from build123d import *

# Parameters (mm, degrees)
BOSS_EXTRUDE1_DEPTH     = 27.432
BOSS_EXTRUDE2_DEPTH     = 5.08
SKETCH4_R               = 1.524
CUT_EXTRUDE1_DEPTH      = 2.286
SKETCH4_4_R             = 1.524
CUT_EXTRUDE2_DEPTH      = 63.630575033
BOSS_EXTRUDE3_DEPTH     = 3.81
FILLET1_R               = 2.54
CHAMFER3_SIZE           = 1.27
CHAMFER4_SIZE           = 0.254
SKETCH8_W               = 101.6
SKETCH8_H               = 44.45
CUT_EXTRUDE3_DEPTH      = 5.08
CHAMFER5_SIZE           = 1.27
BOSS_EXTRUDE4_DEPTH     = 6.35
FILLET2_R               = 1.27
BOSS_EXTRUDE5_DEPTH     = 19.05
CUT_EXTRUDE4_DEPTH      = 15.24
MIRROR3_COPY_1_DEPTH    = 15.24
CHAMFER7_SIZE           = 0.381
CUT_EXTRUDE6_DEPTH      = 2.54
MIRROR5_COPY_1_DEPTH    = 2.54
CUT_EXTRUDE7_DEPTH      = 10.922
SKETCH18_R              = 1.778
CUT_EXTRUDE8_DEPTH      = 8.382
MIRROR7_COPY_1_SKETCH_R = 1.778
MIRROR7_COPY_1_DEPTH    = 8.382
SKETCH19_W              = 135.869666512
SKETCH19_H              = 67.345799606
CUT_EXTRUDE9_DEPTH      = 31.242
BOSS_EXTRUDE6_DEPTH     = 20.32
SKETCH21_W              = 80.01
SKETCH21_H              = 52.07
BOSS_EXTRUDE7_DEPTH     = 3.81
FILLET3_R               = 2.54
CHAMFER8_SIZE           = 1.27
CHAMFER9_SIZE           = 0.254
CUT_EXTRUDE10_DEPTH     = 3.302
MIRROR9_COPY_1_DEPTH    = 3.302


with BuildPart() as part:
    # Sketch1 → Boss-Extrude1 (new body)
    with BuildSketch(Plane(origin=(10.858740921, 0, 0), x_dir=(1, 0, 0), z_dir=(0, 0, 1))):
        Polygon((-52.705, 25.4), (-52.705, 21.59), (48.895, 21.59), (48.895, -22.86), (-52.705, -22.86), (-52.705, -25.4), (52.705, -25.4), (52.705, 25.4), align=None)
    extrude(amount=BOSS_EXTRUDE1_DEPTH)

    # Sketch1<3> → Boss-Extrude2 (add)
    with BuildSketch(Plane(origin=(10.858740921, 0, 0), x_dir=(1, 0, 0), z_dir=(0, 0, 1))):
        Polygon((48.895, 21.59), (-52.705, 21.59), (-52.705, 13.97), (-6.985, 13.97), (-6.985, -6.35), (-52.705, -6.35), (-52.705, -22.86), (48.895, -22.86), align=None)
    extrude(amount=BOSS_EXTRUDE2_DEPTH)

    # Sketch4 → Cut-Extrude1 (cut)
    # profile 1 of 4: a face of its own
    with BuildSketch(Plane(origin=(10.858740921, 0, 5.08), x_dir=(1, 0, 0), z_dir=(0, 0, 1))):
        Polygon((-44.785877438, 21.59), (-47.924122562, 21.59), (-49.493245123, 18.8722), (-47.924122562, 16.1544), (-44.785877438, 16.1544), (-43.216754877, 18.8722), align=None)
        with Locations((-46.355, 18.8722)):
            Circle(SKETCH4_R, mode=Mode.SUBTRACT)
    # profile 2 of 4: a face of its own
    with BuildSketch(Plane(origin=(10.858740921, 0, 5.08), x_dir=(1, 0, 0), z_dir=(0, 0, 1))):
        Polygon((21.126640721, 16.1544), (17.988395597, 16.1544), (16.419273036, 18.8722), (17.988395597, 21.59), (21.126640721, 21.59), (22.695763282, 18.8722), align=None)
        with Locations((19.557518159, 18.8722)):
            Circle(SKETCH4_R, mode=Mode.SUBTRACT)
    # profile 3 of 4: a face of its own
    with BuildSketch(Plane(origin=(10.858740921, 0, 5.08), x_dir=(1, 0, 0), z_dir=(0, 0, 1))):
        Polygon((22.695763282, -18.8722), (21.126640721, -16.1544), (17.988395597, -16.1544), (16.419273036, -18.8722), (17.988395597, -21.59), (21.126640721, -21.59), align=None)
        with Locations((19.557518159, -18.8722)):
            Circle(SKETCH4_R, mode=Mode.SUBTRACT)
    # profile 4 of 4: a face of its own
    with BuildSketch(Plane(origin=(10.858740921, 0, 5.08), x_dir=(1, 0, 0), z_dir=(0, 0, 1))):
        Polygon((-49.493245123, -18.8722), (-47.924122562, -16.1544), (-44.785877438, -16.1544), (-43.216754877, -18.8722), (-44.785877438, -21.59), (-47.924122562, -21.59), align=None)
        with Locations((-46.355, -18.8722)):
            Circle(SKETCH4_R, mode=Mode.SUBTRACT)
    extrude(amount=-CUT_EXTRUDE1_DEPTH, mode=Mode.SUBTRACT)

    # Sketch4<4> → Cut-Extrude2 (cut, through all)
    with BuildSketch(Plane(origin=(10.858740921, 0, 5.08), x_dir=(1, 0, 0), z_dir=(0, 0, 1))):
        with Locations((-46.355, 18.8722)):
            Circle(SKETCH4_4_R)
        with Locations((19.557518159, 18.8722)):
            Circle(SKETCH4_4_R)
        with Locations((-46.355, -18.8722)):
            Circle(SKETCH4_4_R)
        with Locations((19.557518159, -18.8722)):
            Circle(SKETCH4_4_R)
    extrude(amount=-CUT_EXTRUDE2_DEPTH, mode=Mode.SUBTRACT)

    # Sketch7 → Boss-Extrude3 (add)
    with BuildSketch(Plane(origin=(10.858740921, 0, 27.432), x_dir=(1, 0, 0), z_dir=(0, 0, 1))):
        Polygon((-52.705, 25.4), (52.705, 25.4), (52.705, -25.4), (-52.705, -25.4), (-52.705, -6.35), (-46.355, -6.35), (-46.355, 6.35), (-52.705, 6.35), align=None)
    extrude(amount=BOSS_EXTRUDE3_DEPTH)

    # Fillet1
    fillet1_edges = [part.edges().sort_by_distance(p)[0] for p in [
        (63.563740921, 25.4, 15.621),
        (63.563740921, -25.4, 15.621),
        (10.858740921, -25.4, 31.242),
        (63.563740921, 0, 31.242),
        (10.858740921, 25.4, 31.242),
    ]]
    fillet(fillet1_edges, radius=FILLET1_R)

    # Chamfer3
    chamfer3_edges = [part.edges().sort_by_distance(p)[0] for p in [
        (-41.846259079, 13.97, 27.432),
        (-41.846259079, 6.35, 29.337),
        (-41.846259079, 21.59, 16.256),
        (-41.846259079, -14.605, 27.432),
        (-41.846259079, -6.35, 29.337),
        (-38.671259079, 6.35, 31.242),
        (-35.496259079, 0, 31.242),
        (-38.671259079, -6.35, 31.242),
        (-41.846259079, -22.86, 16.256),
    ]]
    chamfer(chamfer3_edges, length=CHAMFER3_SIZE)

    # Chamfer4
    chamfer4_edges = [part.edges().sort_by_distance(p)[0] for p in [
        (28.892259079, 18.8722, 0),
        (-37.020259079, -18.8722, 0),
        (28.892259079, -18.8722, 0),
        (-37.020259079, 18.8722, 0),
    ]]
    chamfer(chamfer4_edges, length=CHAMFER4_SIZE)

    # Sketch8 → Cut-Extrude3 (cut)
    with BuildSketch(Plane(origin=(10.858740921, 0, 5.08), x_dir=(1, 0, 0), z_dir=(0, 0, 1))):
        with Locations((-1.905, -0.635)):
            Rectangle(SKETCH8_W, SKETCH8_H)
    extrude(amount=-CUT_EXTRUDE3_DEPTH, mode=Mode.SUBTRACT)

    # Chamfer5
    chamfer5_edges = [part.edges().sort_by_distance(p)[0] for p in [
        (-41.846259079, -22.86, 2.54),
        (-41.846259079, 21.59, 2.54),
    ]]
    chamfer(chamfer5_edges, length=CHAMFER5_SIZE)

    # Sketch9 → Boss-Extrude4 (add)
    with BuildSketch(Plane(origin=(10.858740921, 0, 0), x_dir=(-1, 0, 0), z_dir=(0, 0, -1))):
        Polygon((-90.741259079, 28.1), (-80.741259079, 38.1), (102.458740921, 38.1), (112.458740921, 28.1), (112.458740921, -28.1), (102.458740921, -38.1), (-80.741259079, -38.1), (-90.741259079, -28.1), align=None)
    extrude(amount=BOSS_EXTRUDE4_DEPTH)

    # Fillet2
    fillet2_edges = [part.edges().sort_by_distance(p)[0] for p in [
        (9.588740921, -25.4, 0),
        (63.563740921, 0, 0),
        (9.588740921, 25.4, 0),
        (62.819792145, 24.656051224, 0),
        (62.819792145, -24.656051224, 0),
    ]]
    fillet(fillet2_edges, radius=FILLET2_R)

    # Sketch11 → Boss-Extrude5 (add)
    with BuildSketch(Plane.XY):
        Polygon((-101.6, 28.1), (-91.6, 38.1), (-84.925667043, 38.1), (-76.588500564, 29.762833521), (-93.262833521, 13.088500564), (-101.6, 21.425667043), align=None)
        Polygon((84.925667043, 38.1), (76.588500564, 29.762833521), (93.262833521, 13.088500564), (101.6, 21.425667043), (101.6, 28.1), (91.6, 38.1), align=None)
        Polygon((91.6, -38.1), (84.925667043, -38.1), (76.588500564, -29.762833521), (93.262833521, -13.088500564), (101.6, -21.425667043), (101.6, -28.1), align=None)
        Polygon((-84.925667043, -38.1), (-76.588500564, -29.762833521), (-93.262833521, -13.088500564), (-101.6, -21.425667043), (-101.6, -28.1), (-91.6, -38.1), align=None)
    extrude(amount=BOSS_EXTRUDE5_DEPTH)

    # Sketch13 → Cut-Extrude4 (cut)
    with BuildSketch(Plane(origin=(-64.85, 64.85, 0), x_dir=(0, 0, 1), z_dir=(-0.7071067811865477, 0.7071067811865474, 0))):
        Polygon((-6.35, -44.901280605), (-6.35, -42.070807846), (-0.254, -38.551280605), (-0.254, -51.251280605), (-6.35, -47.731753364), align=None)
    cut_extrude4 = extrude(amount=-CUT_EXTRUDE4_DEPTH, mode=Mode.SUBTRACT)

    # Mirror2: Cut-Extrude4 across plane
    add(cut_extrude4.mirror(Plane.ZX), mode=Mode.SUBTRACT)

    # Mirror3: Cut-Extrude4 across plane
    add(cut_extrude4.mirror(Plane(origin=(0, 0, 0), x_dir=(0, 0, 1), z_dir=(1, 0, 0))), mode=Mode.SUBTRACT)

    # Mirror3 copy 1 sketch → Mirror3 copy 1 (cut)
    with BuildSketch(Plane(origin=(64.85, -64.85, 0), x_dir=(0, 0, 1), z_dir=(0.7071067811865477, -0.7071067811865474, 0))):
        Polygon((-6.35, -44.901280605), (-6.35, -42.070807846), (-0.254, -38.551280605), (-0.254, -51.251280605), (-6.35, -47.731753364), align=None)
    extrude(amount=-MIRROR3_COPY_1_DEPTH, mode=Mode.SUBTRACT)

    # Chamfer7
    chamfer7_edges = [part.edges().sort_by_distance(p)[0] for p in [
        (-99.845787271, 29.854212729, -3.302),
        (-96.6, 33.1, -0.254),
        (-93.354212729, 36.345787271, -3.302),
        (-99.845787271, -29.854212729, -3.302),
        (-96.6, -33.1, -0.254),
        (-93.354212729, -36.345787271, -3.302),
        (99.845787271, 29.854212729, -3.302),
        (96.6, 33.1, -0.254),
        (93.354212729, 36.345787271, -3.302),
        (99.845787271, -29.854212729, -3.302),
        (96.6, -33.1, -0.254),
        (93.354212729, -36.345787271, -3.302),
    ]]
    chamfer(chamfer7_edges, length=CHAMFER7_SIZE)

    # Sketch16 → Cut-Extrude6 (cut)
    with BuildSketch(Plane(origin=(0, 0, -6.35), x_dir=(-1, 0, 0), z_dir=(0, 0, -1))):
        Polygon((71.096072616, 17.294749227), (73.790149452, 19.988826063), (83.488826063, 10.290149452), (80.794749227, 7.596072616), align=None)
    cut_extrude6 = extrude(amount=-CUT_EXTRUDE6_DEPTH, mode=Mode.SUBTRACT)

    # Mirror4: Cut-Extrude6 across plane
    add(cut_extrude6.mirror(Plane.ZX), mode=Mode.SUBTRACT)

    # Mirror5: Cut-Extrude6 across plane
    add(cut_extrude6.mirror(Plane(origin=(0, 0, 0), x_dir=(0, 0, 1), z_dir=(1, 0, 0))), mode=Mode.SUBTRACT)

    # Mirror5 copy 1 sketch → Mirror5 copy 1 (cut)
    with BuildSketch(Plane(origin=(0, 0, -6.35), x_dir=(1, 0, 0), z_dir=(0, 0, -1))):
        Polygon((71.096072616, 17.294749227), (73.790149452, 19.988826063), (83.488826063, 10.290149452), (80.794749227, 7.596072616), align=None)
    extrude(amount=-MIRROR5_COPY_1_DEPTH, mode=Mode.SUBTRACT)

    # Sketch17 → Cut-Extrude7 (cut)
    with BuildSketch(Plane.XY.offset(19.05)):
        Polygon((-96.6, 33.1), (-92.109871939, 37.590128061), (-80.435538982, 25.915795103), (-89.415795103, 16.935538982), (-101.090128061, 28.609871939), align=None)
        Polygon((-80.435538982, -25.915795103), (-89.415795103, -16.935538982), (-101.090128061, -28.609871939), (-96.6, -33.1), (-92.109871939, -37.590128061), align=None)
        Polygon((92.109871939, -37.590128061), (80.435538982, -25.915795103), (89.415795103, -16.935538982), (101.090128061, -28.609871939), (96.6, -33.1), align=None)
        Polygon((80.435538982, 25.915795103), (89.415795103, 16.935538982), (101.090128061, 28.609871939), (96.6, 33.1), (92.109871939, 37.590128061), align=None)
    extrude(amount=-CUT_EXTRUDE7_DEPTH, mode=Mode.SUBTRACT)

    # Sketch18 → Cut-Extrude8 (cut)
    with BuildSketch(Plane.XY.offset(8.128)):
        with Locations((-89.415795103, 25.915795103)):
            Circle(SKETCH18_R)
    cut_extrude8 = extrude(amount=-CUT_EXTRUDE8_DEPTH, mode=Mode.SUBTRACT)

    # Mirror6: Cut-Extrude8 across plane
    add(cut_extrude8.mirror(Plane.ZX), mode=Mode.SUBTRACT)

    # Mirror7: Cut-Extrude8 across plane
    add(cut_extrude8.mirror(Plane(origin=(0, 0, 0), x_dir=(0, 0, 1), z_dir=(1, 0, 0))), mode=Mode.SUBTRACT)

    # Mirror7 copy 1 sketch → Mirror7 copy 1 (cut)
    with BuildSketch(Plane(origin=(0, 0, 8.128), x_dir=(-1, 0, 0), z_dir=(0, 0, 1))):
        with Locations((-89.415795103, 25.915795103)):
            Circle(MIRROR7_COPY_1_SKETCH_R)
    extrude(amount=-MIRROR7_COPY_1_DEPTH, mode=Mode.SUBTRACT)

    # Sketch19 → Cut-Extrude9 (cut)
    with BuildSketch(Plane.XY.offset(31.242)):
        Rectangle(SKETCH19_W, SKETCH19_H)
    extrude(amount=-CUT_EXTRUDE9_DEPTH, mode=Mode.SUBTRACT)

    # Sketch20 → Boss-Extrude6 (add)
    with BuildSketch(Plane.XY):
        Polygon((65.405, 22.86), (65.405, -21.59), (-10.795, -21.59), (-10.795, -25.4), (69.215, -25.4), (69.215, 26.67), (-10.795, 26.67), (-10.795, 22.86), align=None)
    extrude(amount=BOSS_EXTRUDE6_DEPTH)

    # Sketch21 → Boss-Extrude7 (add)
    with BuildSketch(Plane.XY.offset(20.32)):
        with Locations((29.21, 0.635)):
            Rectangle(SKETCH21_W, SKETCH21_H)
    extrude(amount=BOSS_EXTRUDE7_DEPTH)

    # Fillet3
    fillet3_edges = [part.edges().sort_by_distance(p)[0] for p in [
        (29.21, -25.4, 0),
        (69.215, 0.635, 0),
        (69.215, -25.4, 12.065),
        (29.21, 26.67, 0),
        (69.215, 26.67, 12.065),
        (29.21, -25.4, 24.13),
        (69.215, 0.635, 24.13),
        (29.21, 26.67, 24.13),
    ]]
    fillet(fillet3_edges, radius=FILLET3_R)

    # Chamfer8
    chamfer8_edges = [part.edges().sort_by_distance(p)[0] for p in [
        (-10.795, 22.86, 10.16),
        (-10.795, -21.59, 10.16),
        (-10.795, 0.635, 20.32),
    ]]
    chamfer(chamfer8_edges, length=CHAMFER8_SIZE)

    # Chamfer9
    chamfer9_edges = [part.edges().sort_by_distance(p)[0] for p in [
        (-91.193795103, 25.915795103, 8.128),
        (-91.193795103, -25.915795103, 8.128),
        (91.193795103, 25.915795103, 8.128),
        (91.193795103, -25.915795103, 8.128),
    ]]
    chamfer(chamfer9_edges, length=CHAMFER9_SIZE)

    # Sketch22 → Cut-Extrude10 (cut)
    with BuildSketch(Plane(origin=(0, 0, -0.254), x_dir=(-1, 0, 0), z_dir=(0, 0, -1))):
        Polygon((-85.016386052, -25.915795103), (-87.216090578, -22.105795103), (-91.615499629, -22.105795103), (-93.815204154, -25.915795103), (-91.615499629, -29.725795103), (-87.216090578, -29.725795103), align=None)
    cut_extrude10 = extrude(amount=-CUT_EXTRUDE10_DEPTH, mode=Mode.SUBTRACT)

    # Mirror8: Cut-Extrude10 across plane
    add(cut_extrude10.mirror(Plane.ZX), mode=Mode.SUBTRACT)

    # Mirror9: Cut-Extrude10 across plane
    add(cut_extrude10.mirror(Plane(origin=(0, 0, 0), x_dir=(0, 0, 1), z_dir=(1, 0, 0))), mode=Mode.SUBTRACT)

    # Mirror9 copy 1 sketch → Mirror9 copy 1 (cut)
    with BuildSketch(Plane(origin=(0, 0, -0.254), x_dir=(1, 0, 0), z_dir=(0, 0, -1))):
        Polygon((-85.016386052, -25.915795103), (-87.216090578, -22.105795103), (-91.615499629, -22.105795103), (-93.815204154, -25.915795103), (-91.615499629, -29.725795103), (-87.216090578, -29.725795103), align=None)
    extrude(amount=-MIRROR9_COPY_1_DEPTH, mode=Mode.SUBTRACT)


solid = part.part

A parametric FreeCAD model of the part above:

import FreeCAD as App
import Part
import Sketcher
from FreeCAD import Vector
Q = App.Units.Quantity


def edges_at(feature, points):
    """Names of the edges that pass closest to the given points."""
    edges = feature.Shape.Edges
    near = lambda p: min(range(len(edges)), key=lambda i: edges[i].distToShape(Part.Vertex(*p))[0])
    return sorted({f"Edge{near(p) + 1}" for p in points})


def add_polygon(sketch, points):
    """Adds a closed chain of lines whose ends are joined by coincident constraints."""
    first, n = sketch.GeometryCount, len(points)
    for a, b in zip(points, points[1:] + points[:1]):
        sketch.addGeometry(Part.LineSegment(App.Vector(*a, 0), App.Vector(*b, 0)), False)
    for i in range(n):
        sketch.addConstraint(Sketcher.Constraint("Coincident", first + i, 2, first + (i + 1) % n, 1))

doc = App.newDocument("Part")
body = doc.addObject("PartDesign::Body", "Body")

# Sketch on XY plane
sketch1 = body.newObject("Sketcher::SketchObject", "Sketch")
sketch1.AttachmentSupport = (doc.getObject("XY_Plane"), [""])
sketch1.MapMode = "FlatFace"
add_polygon(sketch1, [(-41.846259, 25.4), (-41.846259, 21.59), (59.753741, 21.59), (59.753741, -22.86), (-41.846259, -22.86), (-41.846259, -25.4), (63.563741, -25.4), (63.563741, 25.4)])  # lines 0-7
sketch1.addConstraint(Sketcher.Constraint("Vertical", 0))
sketch1.addConstraint(Sketcher.Constraint("Horizontal", 1))
sketch1.addConstraint(Sketcher.Constraint("Vertical", 2))
sketch1.addConstraint(Sketcher.Constraint("Horizontal", 3))
sketch1.addConstraint(Sketcher.Constraint("Vertical", 4))
sketch1.addConstraint(Sketcher.Constraint("Horizontal", 5))
sketch1.addConstraint(Sketcher.Constraint("Vertical", 6))
sketch1.addConstraint(Sketcher.Constraint("Horizontal", 7))
sketch1.addConstraint(Sketcher.Constraint("Symmetric", 4, 2, 7, 2, -1))
sketch1.addConstraint(Sketcher.Constraint("DistanceX", 1, 1, 1, 2, Q("4 in")))
sketch1.addConstraint(Sketcher.Constraint("DistanceY", 6, 1, 6, 2, Q("2 in")))
sketch1.addConstraint(Sketcher.Constraint("DistanceY", 4, 2, 4, 1, Q("0.1 in")))
sketch1.addConstraint(Sketcher.Constraint("DistanceX", 5, 1, 5, 2, Q("4.15 in")))
sketch1.addConstraint(Sketcher.Constraint("DistanceY", 0, 2, 0, 1, Q("0.15 in")))
sketch1.addConstraint(Sketcher.Constraint("DistanceX", 0, 2, -1, 1, 41.846259))
pad1 = body.newObject("PartDesign::Pad", "Pad")
pad1.Profile = sketch1
pad1.Length = Q("1.08 in")

# Sketch on XY plane
sketch2 = body.newObject("Sketcher::SketchObject", "Sketch001")
sketch2.AttachmentSupport = (doc.getObject("XY_Plane"), [""])
sketch2.MapMode = "FlatFace"
add_polygon(sketch2, [(59.753741, 21.59), (-41.846259, 21.59), (-41.846259, 13.97), (3.873741, 13.97), (3.873741, -6.35), (-41.846259, -6.35), (-41.846259, -22.86), (59.753741, -22.86)])  # lines 0-7
sketch2.addConstraint(Sketcher.Constraint("Horizontal", 0))
sketch2.addConstraint(Sketcher.Constraint("Vertical", 1))
sketch2.addConstraint(Sketcher.Constraint("Horizontal", 2))
sketch2.addConstraint(Sketcher.Constraint("Vertical", 3))
sketch2.addConstraint(Sketcher.Constraint("Horizontal", 4))
sketch2.addConstraint(Sketcher.Constraint("Vertical", 5))
sketch2.addConstraint(Sketcher.Constraint("Horizontal", 6))
sketch2.addConstraint(Sketcher.Constraint("Vertical", 7))
sketch2.addConstraint(Sketcher.Constraint("Vertical", 1, 2, 4, 2))
sketch2.addConstraint(Sketcher.Constraint("DistanceX", 0, 2, 0, 1, Q("4 in")))
sketch2.addConstraint(Sketcher.Constraint("DistanceX", 2, 1, 2, 2, Q("1.8 in")))
sketch2.addConstraint(Sketcher.Constraint("DistanceY", 1, 2, 1, 1, Q("0.3 in")))
sketch2.addConstraint(Sketcher.Constraint("DistanceY", 3, 2, 3, 1, Q("0.8 in")))
sketch2.addConstraint(Sketcher.Constraint("DistanceY", 5, 2, 5, 1, Q("0.65 in")))
sketch2.addConstraint(Sketcher.Constraint("DistanceY", 5, 2, -1, 1, Q("0.9 in")))
sketch2.addConstraint(Sketcher.Constraint("DistanceX", 0, 2, -1, 1, 41.846259))
pad2 = body.newObject("PartDesign::Pad", "Pad001")
pad2.Profile = sketch2
pad2.Length = Q("0.2 in")

# Sketch on XY plane
sketch3 = body.newObject("Sketcher::SketchObject", "Sketch002")
sketch3.AttachmentSupport = (doc.getObject("XY_Plane"), [""])
sketch3.MapMode = "FlatFace"
sketch3.AttachmentOffset = App.Placement(Vector(0, 0, 0.2 * 25.4), App.Rotation())
add_polygon(sketch3, [(-33.927137, 21.59), (-37.065382, 21.59), (-38.634504, 18.8722), (-37.065382, 16.1544), (-33.927137, 16.1544), (-32.358014, 18.8722)])  # lines 0-5
sketch3.addGeometry(Part.Circle(Vector(-35.496259, 18.8722, 0), Vector(0, 0, 1), 1.524), False)  # 6
add_polygon(sketch3, [(28.847137, 16.1544), (31.985382, 16.1544), (33.554504, 18.8722), (31.985382, 21.59), (28.847137, 21.59), (27.278014, 18.8722)])  # lines 7-12
sketch3.addGeometry(Part.Circle(Vector(30.416259, 18.8722, 0), Vector(0, 0, 1), 1.524), False)  # 13
add_polygon(sketch3, [(33.554504, -18.8722), (31.985382, -16.1544), (28.847137, -16.1544), (27.278014, -18.8722), (28.847137, -21.59), (31.985382, -21.59)])  # lines 14-19
sketch3.addGeometry(Part.Circle(Vector(30.416259, -18.8722, 0), Vector(0, 0, 1), 1.524), False)  # 20
add_polygon(sketch3, [(-37.065382, -16.1544), (-38.634504, -18.8722), (-37.065382, -21.59), (-33.927137, -21.59), (-32.358014, -18.8722), (-33.927137, -16.1544)])  # lines 21-26
sketch3.addGeometry(Part.Circle(Vector(-35.496259, -18.8722, 0), Vector(0, 0, 1), 1.524), False)  # 27
sketch3.addConstraint(Sketcher.Constraint("Horizontal", 0))
sketch3.addConstraint(Sketcher.Constraint("Horizontal", 3))
sketch3.addConstraint(Sketcher.Constraint("Horizontal", 7))
sketch3.addConstraint(Sketcher.Constraint("Horizontal", 10))
sketch3.addConstraint(Sketcher.Constraint("Horizontal", 15))
sketch3.addConstraint(Sketcher.Constraint("Horizontal", 18))
sketch3.addConstraint(Sketcher.Constraint("Horizontal", 23))
sketch3.addConstraint(Sketcher.Constraint("Horizontal", 26))
sketch3.addConstraint(Sketcher.Constraint("Equal", 6, 13))
sketch3.addConstraint(Sketcher.Constraint("Equal", 13, 20))
sketch3.addConstraint(Sketcher.Constraint("Equal", 20, 27))
sketch3.addConstraint(Sketcher.Constraint("Symmetric", 13, 3, 20, 3, -1))
sketch3.addConstraint(Sketcher.Constraint("Symmetric", 6, 3, 27, 3, -1))
sketch3.addConstraint(Sketcher.Constraint("Symmetric", 7, 2, 14, 2, -1))
sketch3.addConstraint(Sketcher.Constraint("Symmetric", 11, 2, 16, 2, -1))
sketch3.addConstraint(Sketcher.Constraint("Symmetric", 10, 2, 17, 2, -1))
sketch3.addConstraint(Sketcher.Constraint("Symmetric", 8, 2, 19, 2, -1))
sketch3.addConstraint(Sketcher.Constraint("Symmetric", 1, 2, 21, 2, -1))
sketch3.addConstraint(Sketcher.Constraint("Symmetric", 0, 2, 22, 2, -1))
sketch3.addConstraint(Sketcher.Constraint("Symmetric", 4, 2, 24, 2, -1))
sketch3.addConstraint(Sketcher.Constraint("Symmetric", 3, 2, 25, 2, -1))
sketch3.addConstraint(Sketcher.Constraint("Parallel", 1, 4))
sketch3.addConstraint(Sketcher.Constraint("Parallel", 2, 5))
sketch3.addConstraint(Sketcher.Constraint("Parallel", 4, 8))
sketch3.addConstraint(Sketcher.Constraint("Parallel", 5, 9))
sketch3.addConstraint(Sketcher.Constraint("Parallel", 8, 11))
sketch3.addConstraint(Sketcher.Constraint("Parallel", 9, 12))
sketch3.addConstraint(Sketcher.Constraint("Parallel", 12, 14))
sketch3.addConstraint(Sketcher.Constraint("Parallel", 11, 16))
sketch3.addConstraint(Sketcher.Constraint("Parallel", 16, 19))
sketch3.addConstraint(Sketcher.Constraint("Parallel", 19, 21))
sketch3.addConstraint(Sketcher.Constraint("Parallel", 21, 24))
sketch3.addConstraint(Sketcher.Constraint("Horizontal", 6, 3, 13, 3))
sketch3.addConstraint(Sketcher.Constraint("Horizontal", 13, 3, 1, 2))
sketch3.addConstraint(Sketcher.Constraint("Horizontal", 1, 2, 4, 2))
sketch3.addConstraint(Sketcher.Constraint("Horizontal", 3, 2, 7, 2))
sketch3.addConstraint(Sketcher.Constraint("Horizontal", 4, 2, 8, 2))
sketch3.addConstraint(Sketcher.Constraint("Horizontal", 5, 2, 9, 2))
sketch3.addConstraint(Sketcher.Constraint("Horizontal", 8, 2, 11, 2))
sketch3.addConstraint(Sketcher.Constraint("Vertical", 0, 2, 2, 2))
sketch3.addConstraint(Sketcher.Constraint("Equal", 3, 7))
sketch3.addConstraint(Sketcher.Constraint("Diameter", 6, Q("0.12 in")))
sketch3.addConstraint(Sketcher.Constraint("Angle", 1, Q("-120 deg")))
sketch3.addConstraint(Sketcher.Constraint("DistanceY", -1, 1, 0, 2, Q("0.85 in")))
sketch3.addConstraint(Sketcher.Constraint("DistanceY", -1, 1, 6, 3, Q("0.743 in")))
sketch3.addConstraint(Sketcher.Constraint("DistanceX", 0, 2, 0, 1, 3.138245))
sketch3.addConstraint(Sketcher.Constraint("DistanceX", 6, 3, -1, 1, 35.496259))
sketch3.addConstraint(Sketcher.Constraint("DistanceX", -1, 1, 13, 3, 30.416259))
sketch3.addConstraint(Sketcher.Constraint("DistanceX", 0, 2, -1, 1, 37.065382))
sketch3.addConstraint(Sketcher.Constraint("DistanceX", -1, 1, 7, 2, 31.985382))
pocket1 = body.newObject("PartDesign::Pocket", "Pocket")
pocket1.Profile = sketch3
pocket1.Length = Q("0.09 in")

# Sketch on XY plane
sketch4 = body.newObject("Sketcher::SketchObject", "Sketch003")
sketch4.AttachmentSupport = (doc.getObject("XY_Plane"), [""])
sketch4.MapMode = "FlatFace"
sketch4.AttachmentOffset = App.Placement(Vector(0, 0, 0.2 * 25.4), App.Rotation())
sketch4.addGeometry(Part.Circle(Vector(-35.496259, 18.8722, 0), Vector(0, 0, 1), 1.524), False)
sketch4.addGeometry(Part.Circle(Vector(30.416259, 18.8722, 0), Vector(0, 0, 1), 1.524), False)
sketch4.addGeometry(Part.Circle(Vector(-35.496259, -18.8722, 0), Vector(0, 0, 1), 1.524), False)
sketch4.addGeometry(Part.Circle(Vector(30.416259, -18.8722, 0), Vector(0, 0, 1), 1.524), False)
sketch4.addConstraint(Sketcher.Constraint("Equal", 0, 1))
sketch4.addConstraint(Sketcher.Constraint("Equal", 1, 2))
sketch4.addConstraint(Sketcher.Constraint("Equal", 2, 3))
sketch4.addConstraint(Sketcher.Constraint("Symmetric", 0, 3, 2, 3, -1))
sketch4.addConstraint(Sketcher.Constraint("Symmetric", 1, 3, 3, 3, -1))
sketch4.addConstraint(Sketcher.Constraint("Horizontal", 0, 3, 1, 3))
sketch4.addConstraint(Sketcher.Constraint("Diameter", 0, Q("0.12 in")))
sketch4.addConstraint(Sketcher.Constraint("DistanceY", -1, 1, 0, 3, Q("0.743 in")))
sketch4.addConstraint(Sketcher.Constraint("DistanceX", 0, 3, -1, 1, 35.496259))
sketch4.addConstraint(Sketcher.Constraint("DistanceX", -1, 1, 1, 3, 30.416259))
pocket2 = body.newObject("PartDesign::Pocket", "Pocket001")
pocket2.Profile = sketch4
pocket2.Type = "ThroughAll"

# Sketch on XY plane
sketch5 = body.newObject("Sketcher::SketchObject", "Sketch004")
sketch5.AttachmentSupport = (doc.getObject("XY_Plane"), [""])
sketch5.MapMode = "FlatFace"
sketch5.AttachmentOffset = App.Placement(Vector(0, 0, 1.08 * 25.4), App.Rotation())
add_polygon(sketch5, [(63.563741, 25.4), (-41.846259, 25.4), (-41.846259, 6.35), (-35.496259, 6.35), (-35.496259, -6.35), (-41.846259, -6.35), (-41.846259, -25.4), (63.563741, -25.4)])  # lines 0-7
sketch5.addConstraint(Sketcher.Constraint("Horizontal", 0))
sketch5.addConstraint(Sketcher.Constraint("Vertical", 1))
sketch5.addConstraint(Sketcher.Constraint("Horizontal", 2))
sketch5.addConstraint(Sketcher.Constraint("Vertical", 3))
sketch5.addConstraint(Sketcher.Constraint("Horizontal", 4))
sketch5.addConstraint(Sketcher.Constraint("Vertical", 5))
sketch5.addConstraint(Sketcher.Constraint("Horizontal", 6))
sketch5.addConstraint(Sketcher.Constraint("Vertical", 7))
sketch5.addConstraint(Sketcher.Constraint("Symmetric", 1, 2, 4, 2, -1))
sketch5.addConstraint(Sketcher.Constraint("Equal", 1, 5))
sketch5.addConstraint(Sketcher.Constraint("DistanceY", 7, 1, 7, 2, Q("2 in")))
sketch5.addConstraint(Sketcher.Constraint("DistanceY", 3, 2, 3, 1, Q("0.5 in")))
sketch5.addConstraint(Sketcher.Constraint("DistanceX", 0, 2, 0, 1, Q("4.15 in")))
sketch5.addConstraint(Sketcher.Constraint("DistanceX", 2, 1, 2, 2, Q("0.25 in")))
sketch5.addConstraint(Sketcher.Constraint("DistanceX", 0, 2, -1, 1, 41.846259))
pad3 = body.newObject("PartDesign::Pad", "Pad002")
pad3.Profile = sketch5
pad3.Length = Q("0.15 in")
doc.recompute()

fillet = body.newObject("PartDesign::Fillet", "Fillet")
fillet.Base = (pad3, edges_at(pad3, [
    (63.564, 25.4, 15.621),
    (63.564, -25.4, 15.621),
    (10.859, -25.4, 31.242),
    (63.564, 0, 31.242),
    (10.859, 25.4, 31.242),
]))
fillet.Radius = Q("0.1 in")
doc.recompute()

chamfer = body.newObject("PartDesign::Chamfer", "Chamfer")
chamfer.Base = (fillet, edges_at(fillet, [
    (-41.846, 13.97, 27.432),
    (-41.846, 6.35, 29.337),
    (-41.846, 21.59, 16.256),
    (-41.846, -14.605, 27.432),
    (-41.846, -6.35, 29.337),
    (-38.671, 6.35, 31.242),
    (-35.496, 0, 31.242),
    (-38.671, -6.35, 31.242),
    (-41.846, -22.86, 16.256),
]))
chamfer.Size = Q("0.05 in")
doc.recompute()

chamfer2 = body.newObject("PartDesign::Chamfer", "Chamfer001")
chamfer2.Base = (chamfer, edges_at(chamfer, [
    (28.892, 18.872, 0),
    (-37.02, -18.872, 0),
    (28.892, -18.872, 0),
    (-37.02, 18.872, 0),
]))
chamfer2.Size = Q("0.01 in")

# Sketch on XY plane
sketch6 = body.newObject("Sketcher::SketchObject", "Sketch005")
sketch6.AttachmentSupport = (doc.getObject("XY_Plane"), [""])
sketch6.MapMode = "FlatFace"
sketch6.AttachmentOffset = App.Placement(Vector(0, 0, 0.2 * 25.4), App.Rotation())
add_polygon(sketch6, [(-41.846259, 21.59), (-41.846259, -22.86), (59.753741, -22.86), (59.753741, 21.59)])  # lines 0-3
sketch6.addConstraint(Sketcher.Constraint("Vertical", 0))
sketch6.addConstraint(Sketcher.Constraint("Horizontal", 1))
sketch6.addConstraint(Sketcher.Constraint("Vertical", 2))
sketch6.addConstraint(Sketcher.Constraint("Horizontal", 3))
sketch6.addConstraint(Sketcher.Constraint("DistanceX", 1, 1, 1, 2, Q("4 in")))
sketch6.addConstraint(Sketcher.Constraint("DistanceY", 0, 2, 0, 1, Q("1.75 in")))
sketch6.addConstraint(Sketcher.Constraint("DistanceY", 0, 2, -1, 1, Q("0.9 in")))
sketch6.addConstraint(Sketcher.Constraint("DistanceX", 0, 2, -1, 1, 41.846259))
pocket3 = body.newObject("PartDesign::Pocket", "Pocket002")
pocket3.Profile = sketch6
pocket3.Length = Q("0.2 in")
doc.recompute()

chamfer3 = body.newObject("PartDesign::Chamfer", "Chamfer002")
chamfer3.Base = (pocket3, edges_at(pocket3, [(-41.846, -22.86, 2.54), (-41.846, 21.59, 2.54)]))
chamfer3.Size = Q("0.05 in")

# Sketch on XY plane
sketch7 = body.newObject("Sketcher::SketchObject", "Sketch006")
sketch7.AttachmentSupport = (doc.getObject("XY_Plane"), [""])
sketch7.MapMode = "FlatFace"
add_polygon(sketch7, [(91.6, 38.1), (101.6, 28.1), (101.6, -28.1), (91.6, -38.1), (-91.6, -38.1), (-101.6, -28.1), (-101.6, 28.1), (-91.6, 38.1)])  # lines 0-7
sketch7.addConstraint(Sketcher.Constraint("Vertical", 1))
sketch7.addConstraint(Sketcher.Constraint("Horizontal", 3))
sketch7.addConstraint(Sketcher.Constraint("Vertical", 5))
sketch7.addConstraint(Sketcher.Constraint("Horizontal", 7))
sketch7.addConstraint(Sketcher.Constraint("Symmetric", 0, 2, 4, 2, -1, 1))
sketch7.addConstraint(Sketcher.Constraint("Symmetric", 2, 2, 6, 2, -1, 1))
sketch7.addConstraint(Sketcher.Constraint("Perpendicular", 0, 2))
sketch7.addConstraint(Sketcher.Constraint("Perpendicular", 2, 4))
sketch7.addConstraint(Sketcher.Constraint("Perpendicular", 4, 6))
sketch7.addConstraint(Sketcher.Constraint("Horizontal", 1, 2, 4, 2))
sketch7.addConstraint(Sketcher.Constraint("Vertical", 3, 2, 6, 2))
sketch7.addConstraint(Sketcher.Constraint("DistanceX", -1, 1, 0, 2, Q("4 in")))
sketch7.addConstraint(Sketcher.Constraint("DistanceY", 3, 2, 6, 2, Q("3 in")))
sketch7.addConstraint(Sketcher.Constraint("DistanceX", 3, 2, 3, 1, 183.2))
pad4 = body.newObject("PartDesign::Pad", "Pad003")
pad4.Profile = sketch7
pad4.Length = Q("0.25 in")
pad4.Reversed = True
doc.recompute()

fillet2 = body.newObject("PartDesign::Fillet", "Fillet001")
fillet2.Base = (pad4, edges_at(pad4, [
    (9.589, -25.4, 0),
    (63.564, 0, 0),
    (9.589, 25.4, 0),
    (62.82, 24.656, 0),
    (62.82, -24.656, 0),
]))
fillet2.Radius = Q("0.05 in")

# Sketch on XY plane
sketch8 = body.newObject("Sketcher::SketchObject", "Sketch007")
sketch8.AttachmentSupport = (doc.getObject("XY_Plane"), [""])
sketch8.MapMode = "FlatFace"
add_polygon(sketch8, [(-91.6, 38.1), (-101.6, 28.1), (-101.6, 21.425667), (-93.262834, 13.088501), (-76.588501, 29.762834), (-84.925667, 38.1)])  # lines 0-5
add_polygon(sketch8, [(84.925667, 38.1), (76.588501, 29.762834), (93.262834, 13.088501), (101.6, 21.425667), (101.6, 28.1), (91.6, 38.1)])  # lines 6-11
add_polygon(sketch8, [(84.925667, -38.1), (91.6, -38.1), (101.6, -28.1), (101.6, -21.425667), (93.262834, -13.088501), (76.588501, -29.762834)])  # lines 12-17
add_polygon(sketch8, [(-84.925667, -38.1), (-76.588501, -29.762834), (-93.262834, -13.088501), (-101.6, -21.425667), (-101.6, -28.1), (-91.6, -38.1)])  # lines 18-23
sketch8.addConstraint(Sketcher.Constraint("Vertical", 1))
sketch8.addConstraint(Sketcher.Constraint("Horizontal", 5))
sketch8.addConstraint(Sketcher.Constraint("Vertical", 9))
sketch8.addConstraint(Sketcher.Constraint("Horizontal", 11))
sketch8.addConstraint(Sketcher.Constraint("Horizontal", 12))
sketch8.addConstraint(Sketcher.Constraint("Vertical", 14))
sketch8.addConstraint(Sketcher.Constraint("Vertical", 21))
sketch8.addConstraint(Sketcher.Constraint("Horizontal", 23))
sketch8.addConstraint(Sketcher.Constraint("Symmetric", 5, 2, 12, 2, -1, 1))
sketch8.addConstraint(Sketcher.Constraint("Symmetric", 0, 2, 13, 2, -1, 1))
sketch8.addConstraint(Sketcher.Constraint("Symmetric", 2, 2, 15, 2, -1, 1))
sketch8.addConstraint(Sketcher.Constraint("Symmetric", 3, 2, 16, 2, -1, 1))
sketch8.addConstraint(Sketcher.Constraint("Symmetric", 6, 2, 18, 2, -1, 1))
sketch8.addConstraint(Sketcher.Constraint("Symmetric", 7, 2, 19, 2, -1, 1))
sketch8.addConstraint(Sketcher.Constraint("Symmetric", 8, 2, 20, 2, -1, 1))
sketch8.addConstraint(Sketcher.Constraint("Symmetric", 10, 2, 22, 2, -1, 1))
sketch8.addConstraint(Sketcher.Constraint("Symmetric", 3, 2, 6, 2, -2))
sketch8.addConstraint(Sketcher.Constraint("Symmetric", 2, 2, 7, 2, -2))
sketch8.addConstraint(Sketcher.Constraint("Symmetric", 1, 2, 8, 2, -2))
sketch8.addConstraint(Sketcher.Constraint("Symmetric", 5, 2, 10, 2, -2))
sketch8.addConstraint(Sketcher.Constraint("Perpendicular", 0, 2))
sketch8.addConstraint(Sketcher.Constraint("Perpendicular", 2, 3))
sketch8.addConstraint(Sketcher.Constraint("Perpendicular", 3, 4))
sketch8.addConstraint(Sketcher.Constraint("Perpendicular", 4, 6))
sketch8.addConstraint(Sketcher.Constraint("Perpendicular", 6, 7))
sketch8.addConstraint(Sketcher.Constraint("Perpendicular", 8, 10))
sketch8.addConstraint(Sketcher.Constraint("Perpendicular", 13, 15))
sketch8.addConstraint(Sketcher.Constraint("Perpendicular", 16, 17))
sketch8.addConstraint(Sketcher.Constraint("Perpendicular", 17, 18))
sketch8.addConstraint(Sketcher.Constraint("Perpendicular", 20, 22))
sketch8.addConstraint(Sketcher.Constraint("Equal", 23, 1))
sketch8.addConstraint(Sketcher.Constraint("DistanceX", 0, 2, -1, 1, Q("4 in")))
sketch8.addConstraint(Sketcher.Constraint("DistanceY", 12, 2, 10, 2, Q("3 in")))
sketch8.addConstraint(Sketcher.Constraint("DistanceY", -1, 1, 0, 2, 28.1))
sketch8.addConstraint(Sketcher.Constraint("DistanceY", -1, 1, 2, 2, 13.088501))
sketch8.addConstraint(Sketcher.Constraint("DistanceX", 5, 2, 5, 1, 6.674333))
pad5 = body.newObject("PartDesign::Pad", "Pad004")
pad5.Profile = sketch8
pad5.Length = Q("0.75 in")

# Sketch on an angled plane
sketch9 = body.newObject("Sketcher::SketchObject", "Sketch008")
sketch9.Placement = App.Placement(Vector(-64.85, 64.85, 0), App.Rotation(Vector(0, 0, 1), Vector(0.707106781, 0.707106781, 0), Vector(-0.707106781, 0.707106781, 0), "ZXY"))
add_polygon(sketch9, [(-6.35, -42.070808), (-6.35, -47.731753), (-0.254, -51.251281), (-0.254, -38.551281)])  # lines 0-3
sketch9.addConstraint(Sketcher.Constraint("Vertical", 0))
sketch9.addConstraint(Sketcher.Constraint("Vertical", 2))
sketch9.addConstraint(Sketcher.Constraint("Equal", 1, 3))
sketch9.addConstraint(Sketcher.Constraint("DistanceY", 2, 1, 2, 2, Q("0.5 in")))
sketch9.addConstraint(Sketcher.Constraint("Angle", 1, Q("-30 deg")))
sketch9.addConstraint(Sketcher.Constraint("DistanceX", 0, 2, -1, 1, Q("0.25 in")))
sketch9.addConstraint(Sketcher.Constraint("DistanceX", 1, 2, -1, 1, Q("0.01 in")))
sketch9.addConstraint(Sketcher.Constraint("DistanceY", 1, 2, -1, 1, 51.251281))
pocket4 = body.newObject("PartDesign::Pocket", "Pocket003")
pocket4.Profile = sketch9
pocket4.Length = Q("0.6 in")
doc.recompute()

mirrored = body.newObject("PartDesign::Mirrored", "Mirrored")
mirrored.Originals = [pocket4]
mirrored.MirrorPlane = (doc.getObject("XZ_Plane"), [""])
body.Tip = mirrored
doc.recompute()

mirrored2 = body.newObject("PartDesign::Mirrored", "Mirrored001")
mirrored2.Originals = [pocket4]
mirrored2.MirrorPlane = (doc.getObject("YZ_Plane"), [""])
body.Tip = mirrored2

# Sketch on an angled plane
sketch10 = body.newObject("Sketcher::SketchObject", "Sketch009")
sketch10.Placement = App.Placement(Vector(64.85, -64.85, 0), App.Rotation(Vector(0, 0, 1), Vector(-0.707106781, -0.707106781, 0), Vector(0.707106781, -0.707106781, 0), "ZXY"))
add_polygon(sketch10, [(-6.35, -42.070808), (-6.35, -47.731753), (-0.254, -51.251281), (-0.254, -38.551281)])  # lines 0-3
sketch10.addConstraint(Sketcher.Constraint("Vertical", 0))
sketch10.addConstraint(Sketcher.Constraint("Vertical", 2))
sketch10.addConstraint(Sketcher.Constraint("Equal", 1, 3))
sketch10.addConstraint(Sketcher.Constraint("DistanceY", 2, 1, 2, 2, Q("0.5 in")))
sketch10.addConstraint(Sketcher.Constraint("Angle", 1, Q("-30 deg")))
sketch10.addConstraint(Sketcher.Constraint("DistanceX", 0, 2, -1, 1, Q("0.25 in")))
sketch10.addConstraint(Sketcher.Constraint("DistanceX", 1, 2, -1, 1, Q("0.01 in")))
sketch10.addConstraint(Sketcher.Constraint("DistanceY", 1, 2, -1, 1, 51.251281))
pocket5 = body.newObject("PartDesign::Pocket", "Pocket004")
pocket5.Profile = sketch10
pocket5.Length = Q("0.6 in")
doc.recompute()

chamfer4 = body.newObject("PartDesign::Chamfer", "Chamfer003")
chamfer4.Base = (pocket5, edges_at(pocket5, [
    (-99.846, 29.854, -3.302),
    (-96.6, 33.1, -0.254),
    (-93.354, 36.346, -3.302),
    (-99.846, -29.854, -3.302),
    (-96.6, -33.1, -0.254),
    (-93.354, -36.346, -3.302),
    (99.846, 29.854, -3.302),
    (96.6, 33.1, -0.254),
    (93.354, 36.346, -3.302),
    (99.846, -29.854, -3.302),
    (96.6, -33.1, -0.254),
    (93.354, -36.346, -3.302),
]))
chamfer4.Size = Q("0.015 in")

# Sketch on XY plane
sketch11 = body.newObject("Sketcher::SketchObject", "Sketch010")
sketch11.AttachmentSupport = (doc.getObject("XY_Plane"), [""])
sketch11.MapMode = "FlatFace"
sketch11.AttachmentOffset = App.Placement(Vector(0, 0, -0.25 * 25.4), App.Rotation())
add_polygon(sketch11, [(-73.790149, 19.988826), (-71.096073, 17.294749), (-80.794749, 7.596073), (-83.488826, 10.290149)])  # lines 0-3
sketch11.addConstraint(Sketcher.Constraint("Perpendicular", 0, 1))
sketch11.addConstraint(Sketcher.Constraint("Perpendicular", 1, 2))
sketch11.addConstraint(Sketcher.Constraint("Perpendicular", 2, 3))
sketch11.addConstraint(Sketcher.Constraint("Angle", 0, Q("-45 deg")))
sketch11.addConstraint(Sketcher.Constraint("Distance", 0, Q("0.15 in")))
sketch11.addConstraint(Sketcher.Constraint("Distance", 1, Q("0.54 in")))
sketch11.addConstraint(Sketcher.Constraint("DistanceY", -1, 1, 0, 2, 17.294749))
sketch11.addConstraint(Sketcher.Constraint("DistanceX", 1, 2, -1, 1, 80.794749))
pocket6 = body.newObject("PartDesign::Pocket", "Pocket005")
pocket6.Profile = sketch11
pocket6.Length = Q("0.1 in")
pocket6.Reversed = True
doc.recompute()

mirrored3 = body.newObject("PartDesign::Mirrored", "Mirrored002")
mirrored3.Originals = [pocket6]
mirrored3.MirrorPlane = (doc.getObject("XZ_Plane"), [""])
body.Tip = mirrored3
doc.recompute()

mirrored4 = body.newObject("PartDesign::Mirrored", "Mirrored003")
mirrored4.Originals = [pocket6]
mirrored4.MirrorPlane = (doc.getObject("YZ_Plane"), [""])
body.Tip = mirrored4

# Sketch on XY plane
sketch12 = body.newObject("Sketcher::SketchObject", "Sketch011")
sketch12.AttachmentSupport = (doc.getObject("XY_Plane"), [""])
sketch12.MapMode = "FlatFace"
sketch12.AttachmentOffset = App.Placement(Vector(0, 0, -0.25 * 25.4), App.Rotation())
add_polygon(sketch12, [(73.790149, -19.988826), (71.096073, -17.294749), (80.794749, -7.596073), (83.488826, -10.290149)])  # lines 0-3
sketch12.addConstraint(Sketcher.Constraint("Perpendicular", 0, 1))
sketch12.addConstraint(Sketcher.Constraint("Perpendicular", 1, 2))
sketch12.addConstraint(Sketcher.Constraint("Perpendicular", 2, 3))
sketch12.addConstraint(Sketcher.Constraint("Angle", 0, Q("135 deg")))
sketch12.addConstraint(Sketcher.Constraint("Distance", 0, Q("0.15 in")))
sketch12.addConstraint(Sketcher.Constraint("Distance", 1, Q("0.54 in")))
sketch12.addConstraint(Sketcher.Constraint("DistanceY", 0, 2, -1, 1, 17.294749))
sketch12.addConstraint(Sketcher.Constraint("DistanceX", -1, 1, 1, 2, 80.794749))
pocket7 = body.newObject("PartDesign::Pocket", "Pocket006")
pocket7.Profile = sketch12
pocket7.Length = Q("0.1 in")
pocket7.Reversed = True

# Sketch on XY plane
sketch13 = body.newObject("Sketcher::SketchObject", "Sketch012")
sketch13.AttachmentSupport = (doc.getObject("XY_Plane"), [""])
sketch13.MapMode = "FlatFace"
sketch13.AttachmentOffset = App.Placement(Vector(0, 0, 0.75 * 25.4), App.Rotation())
add_polygon(sketch13, [(-92.109872, 37.590128), (-101.090128, 28.609872), (-89.415795, 16.935539), (-80.435539, 25.915795)])  # lines 0-3
add_polygon(sketch13, [(-80.435539, -25.915795), (-89.415795, -16.935539), (-101.090128, -28.609872), (-92.109872, -37.590128)])  # lines 4-7
add_polygon(sketch13, [(80.435539, -25.915795), (92.109872, -37.590128), (101.090128, -28.609872), (89.415795, -16.935539)])  # lines 8-11
add_polygon(sketch13, [(80.435539, 25.915795), (89.415795, 16.935539), (101.090128, 28.609872), (92.109872, 37.590128)])  # lines 12-15
sketch13.addConstraint(Sketcher.Constraint("Symmetric", 3, 2, 8, 2, -1, 1))
sketch13.addConstraint(Sketcher.Constraint("Symmetric", 0, 2, 9, 2, -1, 1))
sketch13.addConstraint(Sketcher.Constraint("Symmetric", 1, 2, 10, 2, -1, 1))
sketch13.addConstraint(Sketcher.Constraint("Symmetric", 2, 2, 11, 2, -1, 1))
sketch13.addConstraint(Sketcher.Constraint("Symmetric", 4, 2, 12, 2, -1, 1))
sketch13.addConstraint(Sketcher.Constraint("Symmetric", 5, 2, 13, 2, -1, 1))
sketch13.addConstraint(Sketcher.Constraint("Symmetric", 6, 2, 14, 2, -1, 1))
sketch13.addConstraint(Sketcher.Constraint("Symmetric", 7, 2, 15, 2, -1, 1))
sketch13.addConstraint(Sketcher.Constraint("Symmetric", 6, 2, 8, 2, -2))
sketch13.addConstraint(Sketcher.Constraint("Symmetric", 5, 2, 9, 2, -2))
sketch13.addConstraint(Sketcher.Constraint("Symmetric", 4, 2, 10, 2, -2))
sketch13.addConstraint(Sketcher.Constraint("Symmetric", 7, 2, 11, 2, -2))
sketch13.addConstraint(Sketcher.Constraint("Perpendicular", 0, 1))
sketch13.addConstraint(Sketcher.Constraint("Perpendicular", 1, 2))
sketch13.addConstraint(Sketcher.Constraint("Perpendicular", 2, 3))
sketch13.addConstraint(Sketcher.Constraint("Parallel", 3, 4))
sketch13.addConstraint(Sketcher.Constraint("Distance", 0, Q("0.5 in")))
sketch13.addConstraint(Sketcher.Constraint("Distance", 1, Q("0.65 in")))
sketch13.addConstraint(Sketcher.Constraint("DistanceY", 5, 2, 3, 2, 66.2))
sketch13.addConstraint(Sketcher.Constraint("DistanceX", 6, 2, 9, 2, 193.2))
pocket8 = body.newObject("PartDesign::Pocket", "Pocket007")
pocket8.Profile = sketch13
pocket8.Length = Q("0.43 in")

# Sketch on XY plane
sketch14 = body.newObject("Sketcher::SketchObject", "Sketch013")
sketch14.AttachmentSupport = (doc.getObject("XY_Plane"), [""])
sketch14.MapMode = "FlatFace"
sketch14.AttachmentOffset = App.Placement(Vector(0, 0, 0.32 * 25.4), App.Rotation())
sketch14.addGeometry(Part.Circle(Vector(-89.415795, 25.915795, 0), Vector(0, 0, 1), 1.778), False)
sketch14.addConstraint(Sketcher.Constraint("Diameter", 0, Q("0.14 in")))
sketch14.addConstraint(Sketcher.Constraint("DistanceX", 0, 3, -1, 1, 89.415795))
sketch14.addConstraint(Sketcher.Constraint("DistanceY", -1, 1, 0, 3, 25.915795))
pocket9 = body.newObject("PartDesign::Pocket", "Pocket008")
pocket9.Profile = sketch14
pocket9.Length = Q("0.33 in")
doc.recompute()

mirrored5 = body.newObject("PartDesign::Mirrored", "Mirrored004")
mirrored5.Originals = [pocket9]
mirrored5.MirrorPlane = (doc.getObject("XZ_Plane"), [""])
body.Tip = mirrored5
doc.recompute()

mirrored6 = body.newObject("PartDesign::Mirrored", "Mirrored005")
mirrored6.Originals = [pocket9]
mirrored6.MirrorPlane = (doc.getObject("YZ_Plane"), [""])
body.Tip = mirrored6

# Sketch on XY plane
sketch15 = body.newObject("Sketcher::SketchObject", "Sketch014")
sketch15.AttachmentSupport = (doc.getObject("XY_Plane"), [""])
sketch15.MapMode = "FlatFace"
sketch15.AttachmentOffset = App.Placement(Vector(0, 0, 0.32 * 25.4), App.Rotation())
sketch15.addGeometry(Part.Circle(Vector(89.415795, -25.915795, 0), Vector(0, 0, 1), 1.778), False)
sketch15.addConstraint(Sketcher.Constraint("Diameter", 0, Q("0.14 in")))
sketch15.addConstraint(Sketcher.Constraint("DistanceX", -1, 1, 0, 3, 89.415795))
sketch15.addConstraint(Sketcher.Constraint("DistanceY", 0, 3, -1, 1, 25.915795))
pocket10 = body.newObject("PartDesign::Pocket", "Pocket009")
pocket10.Profile = sketch15
pocket10.Length = Q("0.33 in")

# Sketch on XY plane
sketch16 = body.newObject("Sketcher::SketchObject", "Sketch015")
sketch16.AttachmentSupport = (doc.getObject("XY_Plane"), [""])
sketch16.MapMode = "FlatFace"
sketch16.AttachmentOffset = App.Placement(Vector(0, 0, 1.23 * 25.4), App.Rotation())
add_polygon(sketch16, [(-67.934833, 33.6729), (-67.934833, -33.6729), (67.934833, -33.6729), (67.934833, 33.6729)])  # lines 0-3
sketch16.addConstraint(Sketcher.Constraint("Vertical", 0))
sketch16.addConstraint(Sketcher.Constraint("Horizontal", 1))
sketch16.addConstraint(Sketcher.Constraint("Vertical", 2))
sketch16.addConstraint(Sketcher.Constraint("Horizontal", 3))
sketch16.addConstraint(Sketcher.Constraint("Symmetric", 0, 2, 2, 2, -1, 1))
sketch16.addConstraint(Sketcher.Constraint("DistanceY", 0, 2, 0, 1, 67.3458))
sketch16.addConstraint(Sketcher.Constraint("DistanceX", 1, 1, 1, 2, 135.869667))
pocket11 = body.newObject("PartDesign::Pocket", "Pocket010")
pocket11.Profile = sketch16
pocket11.Length = Q("1.23 in")

# Sketch on XY plane
sketch17 = body.newObject("Sketcher::SketchObject", "Sketch016")
sketch17.AttachmentSupport = (doc.getObject("XY_Plane"), [""])
sketch17.MapMode = "FlatFace"
add_polygon(sketch17, [(65.405, 22.86), (65.405, -21.59), (-10.795, -21.59), (-10.795, -25.4), (69.215, -25.4), (69.215, 26.67), (-10.795, 26.67), (-10.795, 22.86)])  # lines 0-7
sketch17.addConstraint(Sketcher.Constraint("Vertical", 0))
sketch17.addConstraint(Sketcher.Constraint("Horizontal", 1))
sketch17.addConstraint(Sketcher.Constraint("Vertical", 2))
sketch17.addConstraint(Sketcher.Constraint("Horizontal", 3))
sketch17.addConstraint(Sketcher.Constraint("Vertical", 4))
sketch17.addConstraint(Sketcher.Constraint("Horizontal", 5))
sketch17.addConstraint(Sketcher.Constraint("Vertical", 6))
sketch17.addConstraint(Sketcher.Constraint("Horizontal", 7))
sketch17.addConstraint(Sketcher.Constraint("Vertical", 2, 2, 5, 2))
sketch17.addConstraint(Sketcher.Constraint("Equal", 2, 6))
sketch17.addConstraint(Sketcher.Constraint("DistanceX", 1, 2, 1, 1, Q("3 in")))
sketch17.addConstraint(Sketcher.Constraint("DistanceY", 2, 2, -1, 1, Q("1 in")))
sketch17.addConstraint(Sketcher.Constraint("DistanceX", 3, 1, 3, 2, Q("3.15 in")))
sketch17.addConstraint(Sketcher.Constraint("DistanceY", 0, 2, 0, 1, Q("1.75 in")))
sketch17.addConstraint(Sketcher.Constraint("DistanceY", 2, 2, 2, 1, Q("0.15 in")))
sketch17.addConstraint(Sketcher.Constraint("DistanceX", -1, 1, 0, 2, Q("2.575 in")))
pad6 = body.newObject("PartDesign::Pad", "Pad005")
pad6.Profile = sketch17
pad6.Length = Q("0.8 in")

# Sketch on XY plane
sketch18 = body.newObject("Sketcher::SketchObject", "Sketch017")
sketch18.AttachmentSupport = (doc.getObject("XY_Plane"), [""])
sketch18.MapMode = "FlatFace"
sketch18.AttachmentOffset = App.Placement(Vector(0, 0, 0.8 * 25.4), App.Rotation())
add_polygon(sketch18, [(-10.795, 26.67), (-10.795, -25.4), (69.215, -25.4), (69.215, 26.67)])  # lines 0-3
sketch18.addConstraint(Sketcher.Constraint("Vertical", 0))
sketch18.addConstraint(Sketcher.Constraint("Horizontal", 1))
sketch18.addConstraint(Sketcher.Constraint("Vertical", 2))
sketch18.addConstraint(Sketcher.Constraint("Horizontal", 3))
sketch18.addConstraint(Sketcher.Constraint("DistanceY", 0, 2, -1, 1, Q("1 in")))
sketch18.addConstraint(Sketcher.Constraint("DistanceX", 1, 1, 1, 2, Q("3.15 in")))
sketch18.addConstraint(Sketcher.Constraint("DistanceY", 0, 2, 0, 1, Q("2.05 in")))
sketch18.addConstraint(Sketcher.Constraint("DistanceX", 0, 2, -1, 1, Q("0.425 in")))
pad7 = body.newObject("PartDesign::Pad", "Pad006")
pad7.Profile = sketch18
pad7.Length = Q("0.15 in")
doc.recompute()

fillet3 = body.newObject("PartDesign::Fillet", "Fillet002")
fillet3.Base = (pad7, edges_at(pad7, [
    (29.21, -25.4, 0),
    (69.215, 0.635, 0),
    (69.215, -25.4, 12.065),
    (29.21, 26.67, 0),
    (69.215, 26.67, 12.065),
    (29.21, -25.4, 24.13),
    (69.215, 0.635, 24.13),
    (29.21, 26.67, 24.13),
]))
fillet3.Radius = Q("0.1 in")
doc.recompute()

chamfer5 = body.newObject("PartDesign::Chamfer", "Chamfer004")
chamfer5.Base = (fillet3, edges_at(fillet3, [(-10.795, 22.86, 10.16), (-10.795, -21.59, 10.16), (-10.795, 0.635, 20.32)]))
chamfer5.Size = Q("0.05 in")
doc.recompute()

chamfer6 = body.newObject("PartDesign::Chamfer", "Chamfer005")
chamfer6.Base = (chamfer5, edges_at(chamfer5, [
    (-91.194, 25.916, 8.128),
    (-91.194, -25.916, 8.128),
    (91.194, 25.916, 8.128),
    (91.194, -25.916, 8.128),
]))
chamfer6.Size = Q("0.01 in")

# Sketch on XY plane
sketch19 = body.newObject("Sketcher::SketchObject", "Sketch018")
sketch19.AttachmentSupport = (doc.getObject("XY_Plane"), [""])
sketch19.MapMode = "FlatFace"
sketch19.AttachmentOffset = App.Placement(Vector(0, 0, -0.01 * 25.4), App.Rotation())
add_polygon(sketch19, [(85.016386, -25.915795), (87.216091, -22.105795), (91.6155, -22.105795), (93.815204, -25.915795), (91.6155, -29.725795), (87.216091, -29.725795)])  # lines 0-5
sketch19.addConstraint(Sketcher.Constraint("Horizontal", 1))
sketch19.addConstraint(Sketcher.Constraint("Horizontal", 4))
sketch19.addConstraint(Sketcher.Constraint("Parallel", 0, 3))
sketch19.addConstraint(Sketcher.Constraint("Parallel", 2, 5))
sketch19.addConstraint(Sketcher.Constraint("Horizontal", 2, 2, 5, 2))
sketch19.addConstraint(Sketcher.Constraint("Vertical", 1, 2, 3, 2))
sketch19.addConstraint(Sketcher.Constraint("Vertical", 0, 2, 4, 2))
sketch19.addConstraint(Sketcher.Constraint("Angle", 0, Q("60 deg")))
sketch19.addConstraint(Sketcher.Constraint("DistanceY", 3, 2, 1, 2, Q("0.3 in")))
sketch19.addConstraint(Sketcher.Constraint("DistanceX", 1, 1, 1, 2, 4.399409))
sketch19.addConstraint(Sketcher.Constraint("DistanceX", -1, 1, 1, 2, 91.6155))
sketch19.addConstraint(Sketcher.Constraint("DistanceY", 0, 2, -1, 1, 22.105795))
pocket12 = body.newObject("PartDesign::Pocket", "Pocket011")
pocket12.Profile = sketch19
pocket12.Length = Q("0.13 in")
pocket12.Reversed = True
doc.recompute()

mirrored7 = body.newObject("PartDesign::Mirrored", "Mirrored006")
mirrored7.Originals = [pocket12]
mirrored7.MirrorPlane = (doc.getObject("XZ_Plane"), [""])
body.Tip = mirrored7
doc.recompute()

mirrored8 = body.newObject("PartDesign::Mirrored", "Mirrored007")
mirrored8.Originals = [pocket12]
mirrored8.MirrorPlane = (doc.getObject("YZ_Plane"), [""])
body.Tip = mirrored8

# Sketch on XY plane
sketch20 = body.newObject("Sketcher::SketchObject", "Sketch019")
sketch20.AttachmentSupport = (doc.getObject("XY_Plane"), [""])
sketch20.MapMode = "FlatFace"
sketch20.AttachmentOffset = App.Placement(Vector(0, 0, -0.01 * 25.4), App.Rotation())
add_polygon(sketch20, [(-85.016386, 25.915795), (-87.216091, 22.105795), (-91.6155, 22.105795), (-93.815204, 25.915795), (-91.6155, 29.725795), (-87.216091, 29.725795)])  # lines 0-5
sketch20.addConstraint(Sketcher.Constraint("Horizontal", 1))
sketch20.addConstraint(Sketcher.Constraint("Horizontal", 4))
sketch20.addConstraint(Sketcher.Constraint("Parallel", 0, 3))
sketch20.addConstraint(Sketcher.Constraint("Parallel", 2, 5))
sketch20.addConstraint(Sketcher.Constraint("Horizontal", 2, 2, 5, 2))
sketch20.addConstraint(Sketcher.Constraint("Vertical", 1, 2, 3, 2))
sketch20.addConstraint(Sketcher.Constraint("Vertical", 0, 2, 4, 2))
sketch20.addConstraint(Sketcher.Constraint("Angle", 0, Q("-120 deg")))
sketch20.addConstraint(Sketcher.Constraint("DistanceY", 1, 2, 3, 2, Q("0.3 in")))
sketch20.addConstraint(Sketcher.Constraint("DistanceX", 1, 2, 1, 1, 4.399409))
sketch20.addConstraint(Sketcher.Constraint("DistanceX", 1, 2, -1, 1, 91.6155))
sketch20.addConstraint(Sketcher.Constraint("DistanceY", -1, 1, 0, 2, 22.105795))
pocket13 = body.newObject("PartDesign::Pocket", "Pocket012")
pocket13.Profile = sketch20
pocket13.Length = Q("0.13 in")
pocket13.Reversed = True

doc.recompute()
